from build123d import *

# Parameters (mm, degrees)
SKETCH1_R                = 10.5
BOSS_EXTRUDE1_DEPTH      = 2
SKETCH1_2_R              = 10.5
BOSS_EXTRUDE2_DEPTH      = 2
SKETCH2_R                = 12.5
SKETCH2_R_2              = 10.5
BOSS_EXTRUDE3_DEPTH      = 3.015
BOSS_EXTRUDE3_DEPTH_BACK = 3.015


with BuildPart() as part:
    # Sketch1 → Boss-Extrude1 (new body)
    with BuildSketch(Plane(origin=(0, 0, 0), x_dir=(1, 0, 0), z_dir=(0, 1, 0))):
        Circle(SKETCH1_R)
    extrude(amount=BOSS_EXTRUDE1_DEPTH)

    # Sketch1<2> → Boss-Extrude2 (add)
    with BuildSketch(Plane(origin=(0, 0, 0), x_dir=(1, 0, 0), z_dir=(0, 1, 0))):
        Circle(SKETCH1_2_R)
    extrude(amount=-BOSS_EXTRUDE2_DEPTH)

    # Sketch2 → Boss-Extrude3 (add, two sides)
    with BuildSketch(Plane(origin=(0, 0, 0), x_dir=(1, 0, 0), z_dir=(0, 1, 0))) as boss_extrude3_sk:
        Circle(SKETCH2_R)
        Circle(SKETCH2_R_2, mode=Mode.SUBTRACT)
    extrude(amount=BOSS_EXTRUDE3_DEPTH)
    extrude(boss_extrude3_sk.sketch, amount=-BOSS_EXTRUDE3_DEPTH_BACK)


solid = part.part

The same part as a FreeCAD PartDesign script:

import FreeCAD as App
import Part
import Sketcher
from FreeCAD import Vector
Q = App.Units.Quantity

doc = App.newDocument("Part")
body = doc.addObject("PartDesign::Body", "Body")

# Sketch on XZ plane
sketch1 = body.newObject("Sketcher::SketchObject", "Sketch")
sketch1.AttachmentSupport = (doc.getObject("XZ_Plane"), [""])
sketch1.MapMode = "FlatFace"
sketch1.addGeometry(Part.Circle(Vector(0, 0, 0), Vector(0, 0, 1), 10), False)
sketch1.addConstraint([
    Sketcher.Constraint("Coincident", 0, 3, -1, 1),
    Sketcher.Constraint("Diameter", 0, Q("21 mm")),
])
pad1 = body.newObject("PartDesign::Pad", "Pad")
pad1.Profile = sketch1
pad1.Length = 2
pad1.Reversed = True

# Sketch on XZ plane
sketch2 = body.newObject("Sketcher::SketchObject", "Sketch001")
sketch2.AttachmentSupport = (doc.getObject("XZ_Plane"), [""])
sketch2.MapMode = "FlatFace"
sketch2.addGeometry(Part.Circle(Vector(0, 0, 0), Vector(0, 0, 1), 10), False)
sketch2.addConstraint([
    Sketcher.Constraint("Coincident", 0, 3, -1, 1),
    Sketcher.Constraint("Diameter", 0, Q("21 mm")),
])
pad2 = body.newObject("PartDesign::Pad", "Pad001")
pad2.Profile = sketch2
pad2.Length = 2

# Sketch on XZ plane
sketch3 = body.newObject("Sketcher::SketchObject", "Sketch002")
sketch3.AttachmentSupport = (doc.getObject("XZ_Plane"), [""])
sketch3.MapMode = "FlatFace"
sketch3.addGeometry([
    Part.Circle(Vector(0, 0, 0), Vector(0, 0, 1), 12),
    Part.Circle(Vector(0, 0, 0), Vector(0, 0, 1), 10),
], False)
sketch3.addConstraint([
    Sketcher.Constraint("Coincident", 0, 3, -1, 1),
    Sketcher.Constraint("Coincident", 1, 3, -1, 1),
    Sketcher.Constraint("Diameter", 0, Q("25 mm")),
    Sketcher.Constraint("Diameter", 1, Q("21 mm")),
])
pad3 = body.newObject("PartDesign::Pad", "Pad002")
pad3.Profile = sketch3
pad3.Type = "TwoLengths"
pad3.Length = 3.015
pad3.Length2 = 3.015
pad3.Reversed = True

doc.recompute()
